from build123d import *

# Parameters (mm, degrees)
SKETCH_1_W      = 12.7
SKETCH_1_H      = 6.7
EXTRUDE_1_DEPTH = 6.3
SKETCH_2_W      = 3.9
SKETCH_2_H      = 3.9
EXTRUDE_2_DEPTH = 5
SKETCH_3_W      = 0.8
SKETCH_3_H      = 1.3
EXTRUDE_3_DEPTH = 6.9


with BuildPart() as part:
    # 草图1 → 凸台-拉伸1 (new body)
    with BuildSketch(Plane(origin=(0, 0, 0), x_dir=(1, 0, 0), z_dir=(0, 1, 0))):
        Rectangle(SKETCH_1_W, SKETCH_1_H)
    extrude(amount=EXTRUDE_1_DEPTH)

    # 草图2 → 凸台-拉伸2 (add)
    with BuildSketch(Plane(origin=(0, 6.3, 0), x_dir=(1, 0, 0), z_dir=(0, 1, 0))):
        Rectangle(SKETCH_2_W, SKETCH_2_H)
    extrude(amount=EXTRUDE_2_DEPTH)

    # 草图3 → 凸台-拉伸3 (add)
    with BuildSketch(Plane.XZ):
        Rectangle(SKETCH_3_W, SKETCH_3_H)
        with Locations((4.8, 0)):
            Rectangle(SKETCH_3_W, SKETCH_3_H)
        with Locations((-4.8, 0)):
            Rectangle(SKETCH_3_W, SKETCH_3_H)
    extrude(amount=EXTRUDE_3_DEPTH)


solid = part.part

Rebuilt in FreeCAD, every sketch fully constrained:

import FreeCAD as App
import Part
import Sketcher
Q = App.Units.Quantity


def add_polygon(sketch, points):
    """Adds a closed chain of lines whose ends are joined by coincident constraints."""
    first, n = sketch.GeometryCount, len(points)
    for a, b in zip(points, points[1:] + points[:1]):
        sketch.addGeometry(Part.LineSegment(App.Vector(*a, 0), App.Vector(*b, 0)), False)
    for i in range(n):
        sketch.addConstraint(Sketcher.Constraint("Coincident", first + i, 2, first + (i + 1) % n, 1))

doc = App.newDocument("Part")
body = doc.addObject("PartDesign::Body", "Body")

# Sketch on XZ plane
sketch1 = body.newObject("Sketcher::SketchObject", "Sketch")
sketch1.AttachmentSupport = (doc.getObject("XZ_Plane"), [""])
sketch1.MapMode = "FlatFace"
add_polygon(sketch1, [(-6, -3), (-6, 3), (6, 3), (6, -3)])  # lines 0-3
sketch1.addConstraint([
    Sketcher.Constraint("Vertical", 0),
    Sketcher.Constraint("Horizontal", 1),
    Sketcher.Constraint("Vertical", 2),
    Sketcher.Constraint("Horizontal", 3),
    Sketcher.Constraint("Symmetric", 0, 2, 2, 2, -1, 1),
    Sketcher.Constraint("DistanceX", 1, 1, 1, 2, Q("12.7 mm")),
    Sketcher.Constraint("DistanceY", 0, 1, 0, 2, Q("6.7 mm")),
])
pad1 = body.newObject("PartDesign::Pad", "Pad")
pad1.Profile = sketch1
pad1.Length = 6.3
pad1.Reversed = True

# Sketch on XZ plane
sketch2 = body.newObject("Sketcher::SketchObject", "Sketch001")
sketch2.AttachmentSupport = (doc.getObject("XZ_Plane"), [""])
sketch2.MapMode = "FlatFace"
sketch2.AttachmentOffset = App.Placement(App.Vector(0, 0, -6.3), App.Rotation())
add_polygon(sketch2, [(-1.9, -1.9), (-1.9, 1.9), (1.9, 1.9), (1.9, -1.9)])  # lines 0-3
sketch2.addConstraint([
    Sketcher.Constraint("Vertical", 0),
    Sketcher.Constraint("Horizontal", 1),
    Sketcher.Constraint("Vertical", 2),
    Sketcher.Constraint("Horizontal", 3),
    Sketcher.Constraint("Symmetric", 0, 2, 2, 2, -1, 1),
    Sketcher.Constraint("Equal", 3, 0),
    Sketcher.Constraint("DistanceX", 1, 1, 1, 2, Q("3.9 mm")),
])
pad2 = body.newObject("PartDesign::Pad", "Pad001")
pad2.Profile = sketch2
pad2.Length = 5
pad2.Reversed = True

# Sketch on XZ plane
sketch3 = body.newObject("Sketcher::SketchObject", "Sketch002")
sketch3.AttachmentSupport = (doc.getObject("XZ_Plane"), [""])
sketch3.MapMode = "FlatFace"
add_polygon(sketch3, [(-0.4, 0.7), (-0.4, -0.7), (0.4, -0.7), (0.4, 0.7)])  # lines 0-3
add_polygon(sketch3, [(4.4, 0.7), (4.4, -0.7), (5.2, -0.7), (5.2, 0.7)])  # lines 4-7
add_polygon(sketch3, [(-5.2, 0.7), (-5.2, -0.7), (-4.4, -0.7), (-4.4, 0.7)])  # lines 8-11
sketch3.addConstraint([
    Sketcher.Constraint("Vertical", 0),
    Sketcher.Constraint("Horizontal", 1),
    Sketcher.Constraint("Vertical", 2),
    Sketcher.Constraint("Horizontal", 3),
    Sketcher.Constraint("Vertical", 4),
    Sketcher.Constraint("Horizontal", 5),
    Sketcher.Constraint("Vertical", 6),
    Sketcher.Constraint("Horizontal", 7),
    Sketcher.Constraint("Vertical", 8),
    Sketcher.Constraint("Horizontal", 9),
    Sketcher.Constraint("Vertical", 10),
    Sketcher.Constraint("Horizontal", 11),
    Sketcher.Constraint("Symmetric", 0, 2, 2, 2, -1, 1),
    Sketcher.Constraint("Symmetric", 6, 2, 8, 2, -1, 1),
    Sketcher.Constraint("Symmetric", 4, 2, 10, 2, -1, 1),
    Sketcher.Constraint("Horizontal", 1, 2, 4, 2),
    Sketcher.Constraint("Horizontal", 3, 2, 6, 2),
    Sketcher.Constraint("Equal", 3, 5),
    Sketcher.Constraint("DistanceX", 1, 1, 1, 2, Q("0.8 mm")),
    Sketcher.Constraint("DistanceY", 0, 2, 0, 1, Q("1.3 mm")),
    Sketcher.Constraint("DistanceX", 1, 2, 4, 2, Q("4 mm")),
])
pad3 = body.newObject("PartDesign::Pad", "Pad002")
pad3.Profile = sketch3
pad3.Length = 6.9

doc.recompute()
